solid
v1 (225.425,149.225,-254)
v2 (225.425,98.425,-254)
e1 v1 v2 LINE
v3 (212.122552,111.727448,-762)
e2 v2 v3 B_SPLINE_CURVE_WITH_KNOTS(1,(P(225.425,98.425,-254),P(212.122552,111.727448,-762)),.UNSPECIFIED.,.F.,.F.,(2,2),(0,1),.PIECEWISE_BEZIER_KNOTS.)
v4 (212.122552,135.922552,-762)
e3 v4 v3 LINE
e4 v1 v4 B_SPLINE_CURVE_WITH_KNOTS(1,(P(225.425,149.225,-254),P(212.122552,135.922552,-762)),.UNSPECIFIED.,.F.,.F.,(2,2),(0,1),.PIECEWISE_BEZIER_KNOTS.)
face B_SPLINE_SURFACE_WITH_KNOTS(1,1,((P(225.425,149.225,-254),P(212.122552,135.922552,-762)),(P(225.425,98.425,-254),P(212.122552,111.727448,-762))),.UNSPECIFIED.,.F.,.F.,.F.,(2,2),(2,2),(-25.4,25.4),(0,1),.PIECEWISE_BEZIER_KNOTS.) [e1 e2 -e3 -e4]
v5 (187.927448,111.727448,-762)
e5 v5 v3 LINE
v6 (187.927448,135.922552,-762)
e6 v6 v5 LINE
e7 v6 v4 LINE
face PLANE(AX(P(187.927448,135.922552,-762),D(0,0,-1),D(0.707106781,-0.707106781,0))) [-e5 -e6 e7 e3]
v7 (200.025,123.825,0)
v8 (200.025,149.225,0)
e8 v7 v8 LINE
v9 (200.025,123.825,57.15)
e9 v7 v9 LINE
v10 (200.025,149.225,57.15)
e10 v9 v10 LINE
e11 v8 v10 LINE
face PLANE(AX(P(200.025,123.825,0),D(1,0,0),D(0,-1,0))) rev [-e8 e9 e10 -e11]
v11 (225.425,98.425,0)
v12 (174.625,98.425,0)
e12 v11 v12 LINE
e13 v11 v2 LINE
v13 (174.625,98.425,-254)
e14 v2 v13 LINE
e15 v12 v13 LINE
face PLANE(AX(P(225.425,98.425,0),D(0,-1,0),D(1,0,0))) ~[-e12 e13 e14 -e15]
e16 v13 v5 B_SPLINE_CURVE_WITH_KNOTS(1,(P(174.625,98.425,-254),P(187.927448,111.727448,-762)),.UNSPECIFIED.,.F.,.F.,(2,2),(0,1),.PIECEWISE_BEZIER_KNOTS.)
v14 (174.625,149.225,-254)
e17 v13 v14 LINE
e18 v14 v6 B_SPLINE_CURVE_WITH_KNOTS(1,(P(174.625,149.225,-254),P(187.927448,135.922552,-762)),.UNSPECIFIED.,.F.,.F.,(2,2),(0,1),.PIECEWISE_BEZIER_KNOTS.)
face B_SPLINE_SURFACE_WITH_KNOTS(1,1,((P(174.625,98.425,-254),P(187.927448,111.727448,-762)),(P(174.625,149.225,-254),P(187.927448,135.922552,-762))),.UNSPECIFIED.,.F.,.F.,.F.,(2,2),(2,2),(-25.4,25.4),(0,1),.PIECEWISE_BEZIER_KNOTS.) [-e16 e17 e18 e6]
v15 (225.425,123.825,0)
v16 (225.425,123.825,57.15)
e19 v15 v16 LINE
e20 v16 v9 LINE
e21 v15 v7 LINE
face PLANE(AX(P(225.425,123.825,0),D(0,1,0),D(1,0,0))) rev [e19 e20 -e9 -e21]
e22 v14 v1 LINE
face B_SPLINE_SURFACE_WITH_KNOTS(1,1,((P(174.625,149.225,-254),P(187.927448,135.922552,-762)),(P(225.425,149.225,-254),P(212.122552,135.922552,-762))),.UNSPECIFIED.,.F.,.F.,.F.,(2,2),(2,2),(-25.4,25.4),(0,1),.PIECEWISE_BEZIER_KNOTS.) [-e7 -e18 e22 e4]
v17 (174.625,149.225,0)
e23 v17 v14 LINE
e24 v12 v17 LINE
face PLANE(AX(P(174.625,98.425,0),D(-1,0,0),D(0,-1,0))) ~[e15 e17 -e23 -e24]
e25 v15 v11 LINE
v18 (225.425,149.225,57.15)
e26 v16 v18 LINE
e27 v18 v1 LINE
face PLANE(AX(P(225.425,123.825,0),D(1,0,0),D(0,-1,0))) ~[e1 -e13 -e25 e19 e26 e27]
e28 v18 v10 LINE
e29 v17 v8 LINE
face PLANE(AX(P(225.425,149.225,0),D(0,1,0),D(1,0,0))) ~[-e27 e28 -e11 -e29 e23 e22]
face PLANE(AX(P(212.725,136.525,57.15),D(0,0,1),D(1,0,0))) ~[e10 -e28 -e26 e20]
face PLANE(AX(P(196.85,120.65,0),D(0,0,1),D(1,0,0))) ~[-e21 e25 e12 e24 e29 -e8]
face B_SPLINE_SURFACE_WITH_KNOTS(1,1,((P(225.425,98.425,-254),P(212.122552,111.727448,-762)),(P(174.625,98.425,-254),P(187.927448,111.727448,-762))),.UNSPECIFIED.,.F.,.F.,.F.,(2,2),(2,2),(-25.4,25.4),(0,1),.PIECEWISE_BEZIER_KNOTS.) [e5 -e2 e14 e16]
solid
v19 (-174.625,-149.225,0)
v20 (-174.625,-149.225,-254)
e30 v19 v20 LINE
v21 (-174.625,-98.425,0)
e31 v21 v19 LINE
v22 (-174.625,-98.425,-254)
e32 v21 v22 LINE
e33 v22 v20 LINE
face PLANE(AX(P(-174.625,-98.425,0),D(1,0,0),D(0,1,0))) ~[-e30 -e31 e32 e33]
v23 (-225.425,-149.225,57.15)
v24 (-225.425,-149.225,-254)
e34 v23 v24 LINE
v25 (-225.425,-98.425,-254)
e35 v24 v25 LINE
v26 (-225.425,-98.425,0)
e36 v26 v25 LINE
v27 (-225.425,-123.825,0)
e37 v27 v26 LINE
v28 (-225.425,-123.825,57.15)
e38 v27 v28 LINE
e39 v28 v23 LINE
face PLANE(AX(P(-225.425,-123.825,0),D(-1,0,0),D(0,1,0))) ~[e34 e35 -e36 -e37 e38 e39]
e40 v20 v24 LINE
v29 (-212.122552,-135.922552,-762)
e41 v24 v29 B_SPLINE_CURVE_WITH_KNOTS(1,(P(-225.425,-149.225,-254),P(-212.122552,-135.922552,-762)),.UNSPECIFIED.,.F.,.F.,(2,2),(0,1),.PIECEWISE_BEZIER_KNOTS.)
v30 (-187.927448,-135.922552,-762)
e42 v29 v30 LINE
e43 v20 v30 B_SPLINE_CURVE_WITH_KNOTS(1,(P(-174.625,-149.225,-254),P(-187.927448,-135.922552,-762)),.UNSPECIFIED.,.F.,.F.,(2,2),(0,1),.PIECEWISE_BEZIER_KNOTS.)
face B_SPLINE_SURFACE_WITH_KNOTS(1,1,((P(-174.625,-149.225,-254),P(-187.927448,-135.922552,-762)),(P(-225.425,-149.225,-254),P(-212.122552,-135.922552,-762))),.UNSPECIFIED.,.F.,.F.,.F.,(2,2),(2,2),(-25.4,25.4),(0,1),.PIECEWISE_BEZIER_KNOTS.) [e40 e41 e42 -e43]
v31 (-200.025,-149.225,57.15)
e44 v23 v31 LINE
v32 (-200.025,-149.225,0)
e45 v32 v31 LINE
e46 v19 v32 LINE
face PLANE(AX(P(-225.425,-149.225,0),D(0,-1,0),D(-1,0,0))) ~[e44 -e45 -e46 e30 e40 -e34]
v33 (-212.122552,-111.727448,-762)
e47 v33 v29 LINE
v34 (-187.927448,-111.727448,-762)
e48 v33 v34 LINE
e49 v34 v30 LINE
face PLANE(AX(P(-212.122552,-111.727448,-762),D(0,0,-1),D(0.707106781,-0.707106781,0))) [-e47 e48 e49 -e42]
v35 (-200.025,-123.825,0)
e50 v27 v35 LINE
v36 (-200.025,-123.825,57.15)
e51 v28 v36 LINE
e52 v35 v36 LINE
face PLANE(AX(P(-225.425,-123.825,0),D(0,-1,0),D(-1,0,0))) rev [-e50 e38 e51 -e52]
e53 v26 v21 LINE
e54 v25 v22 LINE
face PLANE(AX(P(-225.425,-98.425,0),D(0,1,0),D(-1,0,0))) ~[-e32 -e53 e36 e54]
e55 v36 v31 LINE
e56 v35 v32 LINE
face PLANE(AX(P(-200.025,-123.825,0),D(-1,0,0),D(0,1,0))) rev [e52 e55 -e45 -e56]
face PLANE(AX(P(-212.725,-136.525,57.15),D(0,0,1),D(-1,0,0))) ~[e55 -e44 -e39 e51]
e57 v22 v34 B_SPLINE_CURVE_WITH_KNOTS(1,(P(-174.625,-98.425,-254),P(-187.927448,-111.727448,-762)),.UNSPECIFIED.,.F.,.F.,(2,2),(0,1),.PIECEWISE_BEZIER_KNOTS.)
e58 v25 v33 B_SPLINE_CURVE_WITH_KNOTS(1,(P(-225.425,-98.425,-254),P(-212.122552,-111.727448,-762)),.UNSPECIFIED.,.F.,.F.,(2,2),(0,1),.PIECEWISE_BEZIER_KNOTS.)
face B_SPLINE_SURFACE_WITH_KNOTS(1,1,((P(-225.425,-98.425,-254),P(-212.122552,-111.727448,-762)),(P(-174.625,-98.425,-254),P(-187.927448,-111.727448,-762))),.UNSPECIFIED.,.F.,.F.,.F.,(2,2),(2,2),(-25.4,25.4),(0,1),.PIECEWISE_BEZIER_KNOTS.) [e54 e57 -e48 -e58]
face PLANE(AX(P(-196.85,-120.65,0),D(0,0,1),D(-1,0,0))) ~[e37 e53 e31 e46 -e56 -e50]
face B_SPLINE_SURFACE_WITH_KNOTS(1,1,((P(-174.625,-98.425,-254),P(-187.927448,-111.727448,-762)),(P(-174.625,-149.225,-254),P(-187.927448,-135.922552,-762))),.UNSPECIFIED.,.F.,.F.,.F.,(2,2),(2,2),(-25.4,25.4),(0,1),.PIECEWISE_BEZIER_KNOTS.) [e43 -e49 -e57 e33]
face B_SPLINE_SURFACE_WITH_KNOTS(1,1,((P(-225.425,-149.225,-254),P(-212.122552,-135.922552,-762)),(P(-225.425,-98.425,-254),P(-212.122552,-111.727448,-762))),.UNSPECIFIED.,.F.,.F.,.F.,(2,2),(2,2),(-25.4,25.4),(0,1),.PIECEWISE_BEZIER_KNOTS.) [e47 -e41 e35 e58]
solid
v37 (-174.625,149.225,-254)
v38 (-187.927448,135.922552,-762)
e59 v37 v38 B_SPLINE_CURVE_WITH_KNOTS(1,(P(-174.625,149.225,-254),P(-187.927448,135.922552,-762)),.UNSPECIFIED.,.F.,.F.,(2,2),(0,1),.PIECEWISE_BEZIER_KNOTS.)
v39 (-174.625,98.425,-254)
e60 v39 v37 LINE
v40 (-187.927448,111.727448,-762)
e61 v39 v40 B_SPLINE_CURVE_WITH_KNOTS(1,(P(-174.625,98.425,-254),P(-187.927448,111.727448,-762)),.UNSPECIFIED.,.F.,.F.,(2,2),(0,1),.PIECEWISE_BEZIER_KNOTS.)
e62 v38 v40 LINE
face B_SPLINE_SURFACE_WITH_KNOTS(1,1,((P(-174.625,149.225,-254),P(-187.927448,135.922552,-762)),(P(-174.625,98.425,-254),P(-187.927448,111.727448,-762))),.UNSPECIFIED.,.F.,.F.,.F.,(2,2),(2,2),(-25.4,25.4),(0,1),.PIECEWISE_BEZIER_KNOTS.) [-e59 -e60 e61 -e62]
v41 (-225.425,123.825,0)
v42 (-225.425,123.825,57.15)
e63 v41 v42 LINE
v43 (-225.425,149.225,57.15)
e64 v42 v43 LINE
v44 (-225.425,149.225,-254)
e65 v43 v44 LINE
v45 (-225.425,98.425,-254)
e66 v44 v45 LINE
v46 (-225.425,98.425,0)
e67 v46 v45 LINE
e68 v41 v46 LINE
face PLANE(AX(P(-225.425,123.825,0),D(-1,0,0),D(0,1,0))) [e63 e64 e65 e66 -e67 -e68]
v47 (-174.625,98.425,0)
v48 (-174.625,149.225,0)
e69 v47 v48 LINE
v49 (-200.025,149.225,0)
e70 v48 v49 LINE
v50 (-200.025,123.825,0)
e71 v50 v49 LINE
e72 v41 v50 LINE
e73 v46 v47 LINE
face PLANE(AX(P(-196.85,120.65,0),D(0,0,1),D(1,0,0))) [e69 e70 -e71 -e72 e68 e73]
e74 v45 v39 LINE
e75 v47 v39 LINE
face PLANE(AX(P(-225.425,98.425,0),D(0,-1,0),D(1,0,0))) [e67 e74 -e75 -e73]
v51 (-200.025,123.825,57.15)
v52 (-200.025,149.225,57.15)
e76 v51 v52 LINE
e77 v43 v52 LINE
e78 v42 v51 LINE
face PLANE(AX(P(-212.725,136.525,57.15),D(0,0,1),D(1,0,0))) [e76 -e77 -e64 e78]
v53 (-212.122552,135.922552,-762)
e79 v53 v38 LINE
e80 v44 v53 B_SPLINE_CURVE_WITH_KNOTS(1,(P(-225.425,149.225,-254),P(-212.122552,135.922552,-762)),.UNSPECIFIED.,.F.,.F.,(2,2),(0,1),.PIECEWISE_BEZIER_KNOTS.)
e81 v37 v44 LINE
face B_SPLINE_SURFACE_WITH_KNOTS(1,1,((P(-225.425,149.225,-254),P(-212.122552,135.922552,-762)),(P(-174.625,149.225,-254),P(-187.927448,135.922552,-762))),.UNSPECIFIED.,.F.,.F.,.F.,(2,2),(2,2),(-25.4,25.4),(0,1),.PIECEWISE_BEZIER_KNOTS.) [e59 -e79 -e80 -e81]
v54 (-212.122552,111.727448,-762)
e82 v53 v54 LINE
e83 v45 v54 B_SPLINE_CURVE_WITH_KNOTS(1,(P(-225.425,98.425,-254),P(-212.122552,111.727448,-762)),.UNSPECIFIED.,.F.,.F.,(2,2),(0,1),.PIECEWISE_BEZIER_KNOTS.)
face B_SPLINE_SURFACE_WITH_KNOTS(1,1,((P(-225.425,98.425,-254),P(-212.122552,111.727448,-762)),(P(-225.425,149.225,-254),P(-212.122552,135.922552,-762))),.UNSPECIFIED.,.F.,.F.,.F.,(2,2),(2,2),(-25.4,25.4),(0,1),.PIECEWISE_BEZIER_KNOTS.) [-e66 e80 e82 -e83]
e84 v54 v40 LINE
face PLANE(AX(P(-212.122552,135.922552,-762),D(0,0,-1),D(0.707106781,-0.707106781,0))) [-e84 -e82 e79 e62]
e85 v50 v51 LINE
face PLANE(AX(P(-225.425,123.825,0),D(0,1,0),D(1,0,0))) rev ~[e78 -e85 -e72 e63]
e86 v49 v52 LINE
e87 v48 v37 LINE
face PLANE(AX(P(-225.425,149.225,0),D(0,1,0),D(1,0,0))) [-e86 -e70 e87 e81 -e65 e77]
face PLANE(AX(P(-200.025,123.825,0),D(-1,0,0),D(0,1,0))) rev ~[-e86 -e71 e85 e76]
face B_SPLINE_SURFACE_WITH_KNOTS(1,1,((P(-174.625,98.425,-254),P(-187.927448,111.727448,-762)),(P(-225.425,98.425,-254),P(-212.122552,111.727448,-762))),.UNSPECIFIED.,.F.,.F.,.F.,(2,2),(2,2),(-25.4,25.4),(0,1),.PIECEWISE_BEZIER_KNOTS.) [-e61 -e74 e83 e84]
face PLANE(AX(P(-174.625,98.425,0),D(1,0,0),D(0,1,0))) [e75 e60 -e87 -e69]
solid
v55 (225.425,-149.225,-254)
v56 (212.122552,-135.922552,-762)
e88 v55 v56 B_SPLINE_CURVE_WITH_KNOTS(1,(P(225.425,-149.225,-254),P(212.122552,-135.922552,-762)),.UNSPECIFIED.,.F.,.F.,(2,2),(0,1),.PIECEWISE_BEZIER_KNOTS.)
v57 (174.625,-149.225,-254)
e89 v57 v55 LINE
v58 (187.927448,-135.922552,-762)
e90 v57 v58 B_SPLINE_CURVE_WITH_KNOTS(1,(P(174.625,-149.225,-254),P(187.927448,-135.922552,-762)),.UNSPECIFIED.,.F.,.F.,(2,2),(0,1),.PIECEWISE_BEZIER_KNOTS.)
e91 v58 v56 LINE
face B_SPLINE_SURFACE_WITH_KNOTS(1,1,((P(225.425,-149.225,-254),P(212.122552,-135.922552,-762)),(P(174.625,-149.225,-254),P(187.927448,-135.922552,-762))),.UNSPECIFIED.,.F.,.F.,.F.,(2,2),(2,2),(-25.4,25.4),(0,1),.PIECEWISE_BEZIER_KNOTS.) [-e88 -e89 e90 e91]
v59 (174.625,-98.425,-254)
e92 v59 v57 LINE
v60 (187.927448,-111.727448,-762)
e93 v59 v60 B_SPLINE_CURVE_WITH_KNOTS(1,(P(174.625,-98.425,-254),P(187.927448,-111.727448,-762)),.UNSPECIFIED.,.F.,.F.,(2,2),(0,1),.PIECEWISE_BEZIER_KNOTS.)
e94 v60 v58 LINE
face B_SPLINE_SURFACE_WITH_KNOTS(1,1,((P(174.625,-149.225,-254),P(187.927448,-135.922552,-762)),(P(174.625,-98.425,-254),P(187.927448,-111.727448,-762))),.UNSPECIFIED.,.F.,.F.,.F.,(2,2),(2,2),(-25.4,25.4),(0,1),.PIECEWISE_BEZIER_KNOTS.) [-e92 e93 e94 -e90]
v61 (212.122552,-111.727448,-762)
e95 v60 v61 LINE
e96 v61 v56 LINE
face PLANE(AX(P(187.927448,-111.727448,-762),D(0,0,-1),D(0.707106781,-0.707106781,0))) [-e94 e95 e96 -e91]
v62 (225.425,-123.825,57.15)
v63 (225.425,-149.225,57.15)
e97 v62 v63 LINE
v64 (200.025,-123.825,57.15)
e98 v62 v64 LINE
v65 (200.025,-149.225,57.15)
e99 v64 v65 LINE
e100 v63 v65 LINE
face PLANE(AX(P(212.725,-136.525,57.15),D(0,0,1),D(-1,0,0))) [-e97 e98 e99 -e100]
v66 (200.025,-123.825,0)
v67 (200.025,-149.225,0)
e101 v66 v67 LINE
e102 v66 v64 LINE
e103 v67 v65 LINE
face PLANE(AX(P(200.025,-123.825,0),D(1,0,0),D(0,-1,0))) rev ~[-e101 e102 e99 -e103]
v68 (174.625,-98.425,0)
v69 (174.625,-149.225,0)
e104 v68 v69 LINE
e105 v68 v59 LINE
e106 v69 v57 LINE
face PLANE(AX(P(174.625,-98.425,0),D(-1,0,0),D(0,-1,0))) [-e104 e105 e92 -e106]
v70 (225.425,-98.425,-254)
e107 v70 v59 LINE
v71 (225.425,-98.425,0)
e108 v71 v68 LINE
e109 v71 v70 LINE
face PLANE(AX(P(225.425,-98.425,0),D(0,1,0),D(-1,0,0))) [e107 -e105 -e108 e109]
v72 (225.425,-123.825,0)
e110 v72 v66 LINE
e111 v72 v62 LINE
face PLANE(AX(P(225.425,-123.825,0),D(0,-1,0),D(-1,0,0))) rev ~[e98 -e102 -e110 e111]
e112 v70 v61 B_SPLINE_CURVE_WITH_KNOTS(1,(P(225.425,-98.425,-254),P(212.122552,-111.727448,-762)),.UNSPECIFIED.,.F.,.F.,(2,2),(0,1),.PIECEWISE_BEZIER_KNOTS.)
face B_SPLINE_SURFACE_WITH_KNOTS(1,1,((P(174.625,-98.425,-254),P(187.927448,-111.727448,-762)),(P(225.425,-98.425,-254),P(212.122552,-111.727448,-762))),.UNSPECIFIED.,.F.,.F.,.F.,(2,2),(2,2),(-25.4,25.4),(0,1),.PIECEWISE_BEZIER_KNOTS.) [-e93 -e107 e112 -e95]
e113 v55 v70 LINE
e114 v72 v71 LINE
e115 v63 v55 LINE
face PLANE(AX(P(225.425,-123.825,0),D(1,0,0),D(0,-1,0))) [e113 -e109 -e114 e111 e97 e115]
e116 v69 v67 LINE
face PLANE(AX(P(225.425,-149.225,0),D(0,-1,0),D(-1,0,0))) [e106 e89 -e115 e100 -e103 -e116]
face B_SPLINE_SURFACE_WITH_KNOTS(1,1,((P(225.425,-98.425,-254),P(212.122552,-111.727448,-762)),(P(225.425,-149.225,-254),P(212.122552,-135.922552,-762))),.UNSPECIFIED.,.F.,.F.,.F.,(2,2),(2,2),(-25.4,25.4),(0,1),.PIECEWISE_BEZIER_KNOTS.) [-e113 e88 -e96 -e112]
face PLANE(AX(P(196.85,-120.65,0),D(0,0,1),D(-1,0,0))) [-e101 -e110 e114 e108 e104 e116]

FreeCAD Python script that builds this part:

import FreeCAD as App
import Part
import Sketcher
Q = App.Units.Quantity


def add_polygon(sketch, points):
    """Adds a closed chain of lines whose ends are joined by coincident constraints."""
    first, n = sketch.GeometryCount, len(points)
    for a, b in zip(points, points[1:] + points[:1]):
        sketch.addGeometry(Part.LineSegment(App.Vector(*a, 0), App.Vector(*b, 0)), False)
    for i in range(n):
        sketch.addConstraint(Sketcher.Constraint("Coincident", first + i, 2, first + (i + 1) % n, 1))

doc = App.newDocument("Part")
body = doc.addObject("PartDesign::Body", "Body")

sketch1 = body.newObject("Sketcher::SketchObject", "Sketch")
sketch1.AttachmentSupport = (doc.getObject("XY_Plane"), [""])
sketch1.MapMode = "FlatFace"
add_polygon(sketch1, [(-175, 149), (-225, 149), (-225, 98), (-175, 98)])
sketch1.addConstraint([
    Sketcher.Constraint("Horizontal", 0),
    Sketcher.Constraint("Vertical", 1),
    Sketcher.Constraint("Horizontal", 2),
    Sketcher.Constraint("Vertical", 3),
    Sketcher.Constraint("Equal", 2, 1),
    Sketcher.Constraint("DistanceX", 0, 2, 0, 1, Q("2 in")),
    Sketcher.Constraint("DistanceX", 0, 2, -1, 1, Q("8.875 in")),
    Sketcher.Constraint("DistanceY", -1, 1, 0, 2, Q("5.875 in")),
])
pad1 = body.newObject("PartDesign::Pad", "Pad")
pad1.Profile = sketch1
pad1.Length = Q("10 in")
pad1.Reversed = True

sketch2 = body.newObject("Sketcher::SketchObject", "Sketch001")
sketch2.AttachmentSupport = (doc.getObject("XY_Plane"), [""])
sketch2.MapMode = "FlatFace"
add_polygon(sketch2, [(-225, 149), (-225, 124), (-200, 124), (-200, 149)])
sketch2.addConstraint([
    Sketcher.Constraint("Vertical", 0),
    Sketcher.Constraint("Horizontal", 1),
    Sketcher.Constraint("Vertical", 2),
    Sketcher.Constraint("Horizontal", 3),
    Sketcher.Constraint("Equal", 3, 0),
    Sketcher.Constraint("DistanceX", 1, 1, 1, 2, Q("1 in")),
    Sketcher.Constraint("DistanceX", 0, 2, -1, 1, Q("8.875 in")),
    Sketcher.Constraint("DistanceY", -1, 1, 0, 2, Q("4.875 in")),
])
pad2 = body.newObject("PartDesign::Pad", "Pad001")
pad2.Profile = sketch2
pad2.Length = Q("2.25 in")
body2 = doc.addObject("PartDesign::Body", "Body001")
doc.recompute()

mirroring = doc.addObject("Part::Mirroring", "Mirroring")
mirroring.Source = body
mirroring.Base = App.Vector(0, 0, 0)
mirroring.Normal = App.Vector(1, 0, 0)
body2.BaseFeature = mirroring
doc.recompute()
body3 = doc.addObject("PartDesign::Body", "Body002")
doc.recompute()

mirroring2 = doc.addObject("Part::Mirroring", "Mirroring001")
mirroring2.Source = body
mirroring2.Base = App.Vector(0, 0, 0)
mirroring2.Normal = App.Vector(0, -1, 0)
body3.BaseFeature = mirroring2
doc.recompute()

sketch3 = body3.newObject("Sketcher::SketchObject", "Sketch002")
sketch3.AttachmentSupport = (doc.getObject("XY_Plane002"), [""])
sketch3.MapMode = "FlatFace"
sketch3.AttachmentOffset = App.Placement(App.Vector(0, 0, -10 * 25.4), App.Rotation())
add_polygon(sketch3, [(-225, -149), (-225, -98), (-175, -98), (-175, -149)])
sketch3.addConstraint([
    Sketcher.Constraint("Vertical", 0),
    Sketcher.Constraint("Horizontal", 1),
    Sketcher.Constraint("Vertical", 2),
    Sketcher.Constraint("Horizontal", 3),
    Sketcher.Constraint("Equal", 3, 0),
    Sketcher.Constraint("DistanceX", 1, 1, 1, 2, Q("2 in")),
    Sketcher.Constraint("DistanceX", 0, 2, -1, 1, Q("8.875 in")),
    Sketcher.Constraint("DistanceY", 0, 2, -1, 1, Q("3.875 in")),
])
pad3 = body3.newObject("PartDesign::Pad", "Pad002")
pad3.Profile = sketch3
pad3.Length = Q("20 in")
pad3.Reversed = True
pad3.TaperAngle = -1.5
body4 = doc.addObject("PartDesign::Body", "Body003")
doc.recompute()

mirroring3 = doc.addObject("Part::Mirroring", "Mirroring002")
mirroring3.Source = body2
mirroring3.Base = App.Vector(0, 0, 0)
mirroring3.Normal = App.Vector(0, -1, 0)
body4.BaseFeature = mirroring3
doc.recompute()

sketch4 = body4.newObject("Sketcher::SketchObject", "Sketch003")
sketch4.AttachmentSupport = (doc.getObject("XY_Plane003"), [""])
sketch4.MapMode = "FlatFace"
sketch4.AttachmentOffset = App.Placement(App.Vector(0, 0, -10 * 25.4), App.Rotation())
add_polygon(sketch4, [(175, -149), (175, -98), (225, -98), (225, -149)])
sketch4.addConstraint([
    Sketcher.Constraint("Vertical", 0),
    Sketcher.Constraint("Horizontal", 1),
    Sketcher.Constraint("Vertical", 2),
    Sketcher.Constraint("Horizontal", 3),
    Sketcher.Constraint("Equal", 3, 0),
    Sketcher.Constraint("DistanceX", 1, 1, 1, 2, Q("2 in")),
    Sketcher.Constraint("DistanceX", -1, 1, 0, 2, Q("6.875 in")),
    Sketcher.Constraint("DistanceY", 0, 2, -1, 1, Q("3.875 in")),
])
pad4 = body4.newObject("PartDesign::Pad", "Pad003")
pad4.Profile = sketch4
pad4.Length = Q("20 in")
pad4.Reversed = True
pad4.TaperAngle = -1.5

sketch5 = body.newObject("Sketcher::SketchObject", "Sketch004")
sketch5.AttachmentSupport = (doc.getObject("XY_Plane"), [""])
sketch5.MapMode = "FlatFace"
sketch5.AttachmentOffset = App.Placement(App.Vector(0, 0, -10 * 25.4), App.Rotation())
add_polygon(sketch5, [(-225, 98), (-225, 149), (-175, 149), (-175, 98)])
sketch5.addConstraint([
    Sketcher.Constraint("Vertical", 0),
    Sketcher.Constraint("Horizontal", 1),
    Sketcher.Constraint("Vertical", 2),
    Sketcher.Constraint("Horizontal", 3),
    Sketcher.Constraint("Equal", 3, 0),
    Sketcher.Constraint("DistanceX", 1, 1, 1, 2, Q("2 in")),
    Sketcher.Constraint("DistanceX", 0, 2, -1, 1, Q("8.875 in")),
    Sketcher.Constraint("DistanceY", -1, 1, 0, 2, Q("5.875 in")),
])
pad5 = body.newObject("PartDesign::Pad", "Pad004")
pad5.Profile = sketch5
pad5.Length = Q("20 in")
pad5.Reversed = True
pad5.TaperAngle = -1.5

sketch6 = body2.newObject("Sketcher::SketchObject", "Sketch005")
sketch6.AttachmentSupport = (doc.getObject("XY_Plane001"), [""])
sketch6.MapMode = "FlatFace"
sketch6.AttachmentOffset = App.Placement(App.Vector(0, 0, -10 * 25.4), App.Rotation())
add_polygon(sketch6, [(175, 98), (175, 149), (225, 149), (225, 98)])
sketch6.addConstraint([
    Sketcher.Constraint("Vertical", 0),
    Sketcher.Constraint("Horizontal", 1),
    Sketcher.Constraint("Vertical", 2),
    Sketcher.Constraint("Horizontal", 3),
    Sketcher.Constraint("Equal", 3, 0),
    Sketcher.Constraint("DistanceX", 1, 1, 1, 2, Q("2 in")),
    Sketcher.Constraint("DistanceX", -1, 1, 0, 2, Q("6.875 in")),
    Sketcher.Constraint("DistanceY", -1, 1, 0, 2, Q("5.875 in")),
])
pad6 = body2.newObject("PartDesign::Pad", "Pad005")
pad6.Profile = sketch6
pad6.Length = Q("20 in")
pad6.Reversed = True
pad6.TaperAngle = -1.5
mirroring.Visibility = False
mirroring2.Visibility = False
mirroring3.Visibility = False

doc.recompute()
